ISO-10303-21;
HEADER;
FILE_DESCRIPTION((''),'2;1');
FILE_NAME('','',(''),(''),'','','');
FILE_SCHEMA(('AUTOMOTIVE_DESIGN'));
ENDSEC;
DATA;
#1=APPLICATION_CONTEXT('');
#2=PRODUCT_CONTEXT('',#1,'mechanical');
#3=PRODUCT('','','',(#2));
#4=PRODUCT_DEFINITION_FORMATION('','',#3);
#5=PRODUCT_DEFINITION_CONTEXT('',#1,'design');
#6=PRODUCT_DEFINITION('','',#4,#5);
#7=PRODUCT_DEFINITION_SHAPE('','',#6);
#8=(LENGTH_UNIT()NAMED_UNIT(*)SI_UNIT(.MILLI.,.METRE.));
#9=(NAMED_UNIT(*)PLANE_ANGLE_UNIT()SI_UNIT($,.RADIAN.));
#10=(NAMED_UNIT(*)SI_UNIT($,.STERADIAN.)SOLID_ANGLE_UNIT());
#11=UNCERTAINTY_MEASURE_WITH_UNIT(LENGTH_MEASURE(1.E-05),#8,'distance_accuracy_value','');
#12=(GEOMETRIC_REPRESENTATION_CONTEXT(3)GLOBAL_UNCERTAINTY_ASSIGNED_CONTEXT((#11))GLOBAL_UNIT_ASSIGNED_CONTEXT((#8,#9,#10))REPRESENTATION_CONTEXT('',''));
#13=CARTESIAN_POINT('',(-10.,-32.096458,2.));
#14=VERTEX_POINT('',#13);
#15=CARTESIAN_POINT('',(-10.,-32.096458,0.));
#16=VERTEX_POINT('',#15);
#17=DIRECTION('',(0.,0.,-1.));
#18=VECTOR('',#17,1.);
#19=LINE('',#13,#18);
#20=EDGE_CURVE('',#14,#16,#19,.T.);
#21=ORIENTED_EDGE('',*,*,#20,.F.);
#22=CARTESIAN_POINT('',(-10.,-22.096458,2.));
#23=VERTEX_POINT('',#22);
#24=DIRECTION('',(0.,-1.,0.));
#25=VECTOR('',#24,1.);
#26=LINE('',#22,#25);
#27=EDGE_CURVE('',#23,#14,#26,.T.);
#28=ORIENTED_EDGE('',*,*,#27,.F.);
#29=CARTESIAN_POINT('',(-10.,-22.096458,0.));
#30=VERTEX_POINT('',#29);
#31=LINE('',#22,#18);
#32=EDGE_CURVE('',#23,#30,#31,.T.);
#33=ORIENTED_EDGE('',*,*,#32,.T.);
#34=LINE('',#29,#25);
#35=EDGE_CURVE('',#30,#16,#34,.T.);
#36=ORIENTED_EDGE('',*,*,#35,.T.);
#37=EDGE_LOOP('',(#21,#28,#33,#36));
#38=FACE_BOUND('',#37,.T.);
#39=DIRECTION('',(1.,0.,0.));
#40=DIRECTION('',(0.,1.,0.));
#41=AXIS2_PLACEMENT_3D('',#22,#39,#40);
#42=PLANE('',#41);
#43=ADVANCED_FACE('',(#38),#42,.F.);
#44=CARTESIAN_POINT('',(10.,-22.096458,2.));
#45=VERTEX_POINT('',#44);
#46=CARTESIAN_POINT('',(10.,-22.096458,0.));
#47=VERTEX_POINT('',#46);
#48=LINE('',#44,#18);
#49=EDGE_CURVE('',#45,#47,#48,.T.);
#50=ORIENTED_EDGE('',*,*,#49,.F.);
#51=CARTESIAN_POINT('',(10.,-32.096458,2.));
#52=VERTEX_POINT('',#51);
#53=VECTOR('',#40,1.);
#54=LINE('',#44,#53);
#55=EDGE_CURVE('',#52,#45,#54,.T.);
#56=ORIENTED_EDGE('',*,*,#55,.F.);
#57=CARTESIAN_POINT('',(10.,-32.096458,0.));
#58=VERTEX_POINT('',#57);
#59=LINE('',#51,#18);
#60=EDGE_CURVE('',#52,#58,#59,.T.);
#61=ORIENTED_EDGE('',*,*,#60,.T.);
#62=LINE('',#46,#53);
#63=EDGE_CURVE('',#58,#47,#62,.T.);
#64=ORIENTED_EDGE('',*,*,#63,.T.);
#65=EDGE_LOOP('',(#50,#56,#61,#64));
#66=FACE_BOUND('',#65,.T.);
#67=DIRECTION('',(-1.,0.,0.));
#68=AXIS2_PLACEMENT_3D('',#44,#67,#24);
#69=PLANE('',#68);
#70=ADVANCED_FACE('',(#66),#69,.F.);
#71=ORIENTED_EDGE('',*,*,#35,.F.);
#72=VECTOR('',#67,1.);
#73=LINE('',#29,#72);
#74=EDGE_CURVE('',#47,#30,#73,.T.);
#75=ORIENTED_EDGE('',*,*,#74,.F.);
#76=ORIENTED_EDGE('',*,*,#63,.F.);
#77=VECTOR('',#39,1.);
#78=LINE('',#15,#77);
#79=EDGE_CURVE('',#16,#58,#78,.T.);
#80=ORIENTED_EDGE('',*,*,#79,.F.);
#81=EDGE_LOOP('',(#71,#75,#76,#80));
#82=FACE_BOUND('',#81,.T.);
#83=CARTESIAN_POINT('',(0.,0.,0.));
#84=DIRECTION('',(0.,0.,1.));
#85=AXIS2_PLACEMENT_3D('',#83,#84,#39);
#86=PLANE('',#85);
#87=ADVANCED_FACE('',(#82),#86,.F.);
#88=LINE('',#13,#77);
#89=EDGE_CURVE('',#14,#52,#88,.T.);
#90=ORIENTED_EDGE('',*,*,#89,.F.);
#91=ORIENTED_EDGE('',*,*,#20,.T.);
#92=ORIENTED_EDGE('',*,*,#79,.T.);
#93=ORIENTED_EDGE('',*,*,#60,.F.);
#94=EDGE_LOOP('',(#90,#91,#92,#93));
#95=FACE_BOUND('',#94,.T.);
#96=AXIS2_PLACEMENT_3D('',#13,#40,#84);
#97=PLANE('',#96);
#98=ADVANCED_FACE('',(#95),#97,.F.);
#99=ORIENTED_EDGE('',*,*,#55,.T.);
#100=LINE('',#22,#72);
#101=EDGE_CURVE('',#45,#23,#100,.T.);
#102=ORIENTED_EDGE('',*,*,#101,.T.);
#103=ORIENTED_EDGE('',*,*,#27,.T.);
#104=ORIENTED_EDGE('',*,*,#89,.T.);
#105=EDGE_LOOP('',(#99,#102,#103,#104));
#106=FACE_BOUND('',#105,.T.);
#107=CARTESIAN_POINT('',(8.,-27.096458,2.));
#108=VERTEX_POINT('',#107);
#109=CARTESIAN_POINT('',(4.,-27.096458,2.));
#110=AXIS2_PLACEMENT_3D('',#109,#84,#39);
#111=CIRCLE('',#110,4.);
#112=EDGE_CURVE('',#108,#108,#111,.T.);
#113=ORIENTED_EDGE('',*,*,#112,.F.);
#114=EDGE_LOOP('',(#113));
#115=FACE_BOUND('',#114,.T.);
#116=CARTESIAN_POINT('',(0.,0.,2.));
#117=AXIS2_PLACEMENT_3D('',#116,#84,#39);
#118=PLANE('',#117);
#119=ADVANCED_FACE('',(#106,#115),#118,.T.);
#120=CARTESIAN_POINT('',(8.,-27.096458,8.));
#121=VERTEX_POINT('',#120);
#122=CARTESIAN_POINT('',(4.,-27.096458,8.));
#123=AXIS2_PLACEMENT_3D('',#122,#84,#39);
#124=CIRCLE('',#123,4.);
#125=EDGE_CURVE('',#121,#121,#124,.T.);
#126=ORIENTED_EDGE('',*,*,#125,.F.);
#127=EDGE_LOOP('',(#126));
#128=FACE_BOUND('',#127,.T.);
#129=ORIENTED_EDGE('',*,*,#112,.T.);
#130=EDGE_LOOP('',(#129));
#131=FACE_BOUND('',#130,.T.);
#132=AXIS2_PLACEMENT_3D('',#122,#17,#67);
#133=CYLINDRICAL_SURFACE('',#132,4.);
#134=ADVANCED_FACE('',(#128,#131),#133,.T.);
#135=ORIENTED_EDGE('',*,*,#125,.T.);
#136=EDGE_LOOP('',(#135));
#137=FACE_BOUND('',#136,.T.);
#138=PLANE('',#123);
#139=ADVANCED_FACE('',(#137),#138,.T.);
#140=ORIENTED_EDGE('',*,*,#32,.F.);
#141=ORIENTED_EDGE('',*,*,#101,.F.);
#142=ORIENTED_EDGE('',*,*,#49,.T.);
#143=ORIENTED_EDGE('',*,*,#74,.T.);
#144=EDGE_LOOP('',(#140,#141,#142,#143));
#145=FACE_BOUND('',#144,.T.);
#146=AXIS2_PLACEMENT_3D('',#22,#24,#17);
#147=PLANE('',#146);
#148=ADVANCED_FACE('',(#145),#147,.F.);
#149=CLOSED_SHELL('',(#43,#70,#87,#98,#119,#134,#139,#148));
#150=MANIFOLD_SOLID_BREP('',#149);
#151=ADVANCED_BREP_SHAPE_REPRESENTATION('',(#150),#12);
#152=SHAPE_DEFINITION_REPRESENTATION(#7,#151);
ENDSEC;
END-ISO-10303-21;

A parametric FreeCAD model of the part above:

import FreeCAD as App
import Part
import Sketcher
from FreeCAD import Vector


def add_polygon(sketch, points):
    """Adds a closed chain of lines whose ends are joined by coincident constraints."""
    first, n = sketch.GeometryCount, len(points)
    for a, b in zip(points, points[1:] + points[:1]):
        sketch.addGeometry(Part.LineSegment(App.Vector(*a, 0), App.Vector(*b, 0)), False)
    for i in range(n):
        sketch.addConstraint(Sketcher.Constraint("Coincident", first + i, 2, first + (i + 1) % n, 1))

doc = App.newDocument("Part")
params = doc.addObject("Spreadsheet::Sheet", "Params")
for row, (alias, value) in enumerate([
    ("sketch1_width", "20 mm"),
    ("sketch1_height", "10 mm"),
    ("pad1_length", "2 mm"),
    ("sketch2_diameter", "8 mm"),
    ("pad2_length", "6 mm"),
], start=1):
    params.set(f"A{row}", alias)
    params.set(f"B{row}", "=" + value)
    params.setAlias(f"B{row}", alias)

body = doc.addObject("PartDesign::Body", "Body")

sketch1 = body.newObject("Sketcher::SketchObject", "Sketch")
sketch1.AttachmentSupport = (doc.getObject("XY_Plane"), [""])
sketch1.MapMode = "FlatFace"
add_polygon(sketch1, [(-10, -22), (-10, -32), (10, -32), (10, -22)])
sketch1.addConstraint([
    Sketcher.Constraint("Vertical", 0),
    Sketcher.Constraint("Horizontal", 1),
    Sketcher.Constraint("Vertical", 2),
    Sketcher.Constraint("Horizontal", 3),
    Sketcher.Constraint("DistanceX", 1, 1, 1, 2, 20.0),
    Sketcher.Constraint("DistanceY", 0, 2, 0, 1, 10.0),
    Sketcher.Constraint("DistanceX", 0, 2, -1, 1, 10.0),
    Sketcher.Constraint("DistanceY", 0, 2, -1, 1, 32.096458),
])
sketch1.setExpression("Constraints[8]", "Params.sketch1_width")
sketch1.setExpression("Constraints[9]", "Params.sketch1_height")
pad1 = body.newObject("PartDesign::Pad", "Pad")
pad1.Profile = sketch1
pad1.setExpression("Length", "Params.pad1_length")

sketch2 = body.newObject("Sketcher::SketchObject", "Sketch001")
sketch2.AttachmentSupport = (doc.getObject("XY_Plane"), [""])
sketch2.MapMode = "FlatFace"
sketch2.AttachmentOffset = App.Placement(Vector(0, 0, 2), App.Rotation())
sketch2.addGeometry(Part.Circle(Vector(4, -27.1, 0), Vector(0, 0, 1), 4), False)
sketch2.addConstraint([
    Sketcher.Constraint("Diameter", 0, 8.0),
    Sketcher.Constraint("DistanceX", -1, 1, 0, 3, 4.0),
    Sketcher.Constraint("DistanceY", 0, 3, -1, 1, 27.096458),
])
sketch2.setExpression("Constraints[0]", "Params.sketch2_diameter")
pad2 = body.newObject("PartDesign::Pad", "Pad001")
pad2.Profile = sketch2
pad2.setExpression("Length", "Params.pad2_length")

doc.recompute()
